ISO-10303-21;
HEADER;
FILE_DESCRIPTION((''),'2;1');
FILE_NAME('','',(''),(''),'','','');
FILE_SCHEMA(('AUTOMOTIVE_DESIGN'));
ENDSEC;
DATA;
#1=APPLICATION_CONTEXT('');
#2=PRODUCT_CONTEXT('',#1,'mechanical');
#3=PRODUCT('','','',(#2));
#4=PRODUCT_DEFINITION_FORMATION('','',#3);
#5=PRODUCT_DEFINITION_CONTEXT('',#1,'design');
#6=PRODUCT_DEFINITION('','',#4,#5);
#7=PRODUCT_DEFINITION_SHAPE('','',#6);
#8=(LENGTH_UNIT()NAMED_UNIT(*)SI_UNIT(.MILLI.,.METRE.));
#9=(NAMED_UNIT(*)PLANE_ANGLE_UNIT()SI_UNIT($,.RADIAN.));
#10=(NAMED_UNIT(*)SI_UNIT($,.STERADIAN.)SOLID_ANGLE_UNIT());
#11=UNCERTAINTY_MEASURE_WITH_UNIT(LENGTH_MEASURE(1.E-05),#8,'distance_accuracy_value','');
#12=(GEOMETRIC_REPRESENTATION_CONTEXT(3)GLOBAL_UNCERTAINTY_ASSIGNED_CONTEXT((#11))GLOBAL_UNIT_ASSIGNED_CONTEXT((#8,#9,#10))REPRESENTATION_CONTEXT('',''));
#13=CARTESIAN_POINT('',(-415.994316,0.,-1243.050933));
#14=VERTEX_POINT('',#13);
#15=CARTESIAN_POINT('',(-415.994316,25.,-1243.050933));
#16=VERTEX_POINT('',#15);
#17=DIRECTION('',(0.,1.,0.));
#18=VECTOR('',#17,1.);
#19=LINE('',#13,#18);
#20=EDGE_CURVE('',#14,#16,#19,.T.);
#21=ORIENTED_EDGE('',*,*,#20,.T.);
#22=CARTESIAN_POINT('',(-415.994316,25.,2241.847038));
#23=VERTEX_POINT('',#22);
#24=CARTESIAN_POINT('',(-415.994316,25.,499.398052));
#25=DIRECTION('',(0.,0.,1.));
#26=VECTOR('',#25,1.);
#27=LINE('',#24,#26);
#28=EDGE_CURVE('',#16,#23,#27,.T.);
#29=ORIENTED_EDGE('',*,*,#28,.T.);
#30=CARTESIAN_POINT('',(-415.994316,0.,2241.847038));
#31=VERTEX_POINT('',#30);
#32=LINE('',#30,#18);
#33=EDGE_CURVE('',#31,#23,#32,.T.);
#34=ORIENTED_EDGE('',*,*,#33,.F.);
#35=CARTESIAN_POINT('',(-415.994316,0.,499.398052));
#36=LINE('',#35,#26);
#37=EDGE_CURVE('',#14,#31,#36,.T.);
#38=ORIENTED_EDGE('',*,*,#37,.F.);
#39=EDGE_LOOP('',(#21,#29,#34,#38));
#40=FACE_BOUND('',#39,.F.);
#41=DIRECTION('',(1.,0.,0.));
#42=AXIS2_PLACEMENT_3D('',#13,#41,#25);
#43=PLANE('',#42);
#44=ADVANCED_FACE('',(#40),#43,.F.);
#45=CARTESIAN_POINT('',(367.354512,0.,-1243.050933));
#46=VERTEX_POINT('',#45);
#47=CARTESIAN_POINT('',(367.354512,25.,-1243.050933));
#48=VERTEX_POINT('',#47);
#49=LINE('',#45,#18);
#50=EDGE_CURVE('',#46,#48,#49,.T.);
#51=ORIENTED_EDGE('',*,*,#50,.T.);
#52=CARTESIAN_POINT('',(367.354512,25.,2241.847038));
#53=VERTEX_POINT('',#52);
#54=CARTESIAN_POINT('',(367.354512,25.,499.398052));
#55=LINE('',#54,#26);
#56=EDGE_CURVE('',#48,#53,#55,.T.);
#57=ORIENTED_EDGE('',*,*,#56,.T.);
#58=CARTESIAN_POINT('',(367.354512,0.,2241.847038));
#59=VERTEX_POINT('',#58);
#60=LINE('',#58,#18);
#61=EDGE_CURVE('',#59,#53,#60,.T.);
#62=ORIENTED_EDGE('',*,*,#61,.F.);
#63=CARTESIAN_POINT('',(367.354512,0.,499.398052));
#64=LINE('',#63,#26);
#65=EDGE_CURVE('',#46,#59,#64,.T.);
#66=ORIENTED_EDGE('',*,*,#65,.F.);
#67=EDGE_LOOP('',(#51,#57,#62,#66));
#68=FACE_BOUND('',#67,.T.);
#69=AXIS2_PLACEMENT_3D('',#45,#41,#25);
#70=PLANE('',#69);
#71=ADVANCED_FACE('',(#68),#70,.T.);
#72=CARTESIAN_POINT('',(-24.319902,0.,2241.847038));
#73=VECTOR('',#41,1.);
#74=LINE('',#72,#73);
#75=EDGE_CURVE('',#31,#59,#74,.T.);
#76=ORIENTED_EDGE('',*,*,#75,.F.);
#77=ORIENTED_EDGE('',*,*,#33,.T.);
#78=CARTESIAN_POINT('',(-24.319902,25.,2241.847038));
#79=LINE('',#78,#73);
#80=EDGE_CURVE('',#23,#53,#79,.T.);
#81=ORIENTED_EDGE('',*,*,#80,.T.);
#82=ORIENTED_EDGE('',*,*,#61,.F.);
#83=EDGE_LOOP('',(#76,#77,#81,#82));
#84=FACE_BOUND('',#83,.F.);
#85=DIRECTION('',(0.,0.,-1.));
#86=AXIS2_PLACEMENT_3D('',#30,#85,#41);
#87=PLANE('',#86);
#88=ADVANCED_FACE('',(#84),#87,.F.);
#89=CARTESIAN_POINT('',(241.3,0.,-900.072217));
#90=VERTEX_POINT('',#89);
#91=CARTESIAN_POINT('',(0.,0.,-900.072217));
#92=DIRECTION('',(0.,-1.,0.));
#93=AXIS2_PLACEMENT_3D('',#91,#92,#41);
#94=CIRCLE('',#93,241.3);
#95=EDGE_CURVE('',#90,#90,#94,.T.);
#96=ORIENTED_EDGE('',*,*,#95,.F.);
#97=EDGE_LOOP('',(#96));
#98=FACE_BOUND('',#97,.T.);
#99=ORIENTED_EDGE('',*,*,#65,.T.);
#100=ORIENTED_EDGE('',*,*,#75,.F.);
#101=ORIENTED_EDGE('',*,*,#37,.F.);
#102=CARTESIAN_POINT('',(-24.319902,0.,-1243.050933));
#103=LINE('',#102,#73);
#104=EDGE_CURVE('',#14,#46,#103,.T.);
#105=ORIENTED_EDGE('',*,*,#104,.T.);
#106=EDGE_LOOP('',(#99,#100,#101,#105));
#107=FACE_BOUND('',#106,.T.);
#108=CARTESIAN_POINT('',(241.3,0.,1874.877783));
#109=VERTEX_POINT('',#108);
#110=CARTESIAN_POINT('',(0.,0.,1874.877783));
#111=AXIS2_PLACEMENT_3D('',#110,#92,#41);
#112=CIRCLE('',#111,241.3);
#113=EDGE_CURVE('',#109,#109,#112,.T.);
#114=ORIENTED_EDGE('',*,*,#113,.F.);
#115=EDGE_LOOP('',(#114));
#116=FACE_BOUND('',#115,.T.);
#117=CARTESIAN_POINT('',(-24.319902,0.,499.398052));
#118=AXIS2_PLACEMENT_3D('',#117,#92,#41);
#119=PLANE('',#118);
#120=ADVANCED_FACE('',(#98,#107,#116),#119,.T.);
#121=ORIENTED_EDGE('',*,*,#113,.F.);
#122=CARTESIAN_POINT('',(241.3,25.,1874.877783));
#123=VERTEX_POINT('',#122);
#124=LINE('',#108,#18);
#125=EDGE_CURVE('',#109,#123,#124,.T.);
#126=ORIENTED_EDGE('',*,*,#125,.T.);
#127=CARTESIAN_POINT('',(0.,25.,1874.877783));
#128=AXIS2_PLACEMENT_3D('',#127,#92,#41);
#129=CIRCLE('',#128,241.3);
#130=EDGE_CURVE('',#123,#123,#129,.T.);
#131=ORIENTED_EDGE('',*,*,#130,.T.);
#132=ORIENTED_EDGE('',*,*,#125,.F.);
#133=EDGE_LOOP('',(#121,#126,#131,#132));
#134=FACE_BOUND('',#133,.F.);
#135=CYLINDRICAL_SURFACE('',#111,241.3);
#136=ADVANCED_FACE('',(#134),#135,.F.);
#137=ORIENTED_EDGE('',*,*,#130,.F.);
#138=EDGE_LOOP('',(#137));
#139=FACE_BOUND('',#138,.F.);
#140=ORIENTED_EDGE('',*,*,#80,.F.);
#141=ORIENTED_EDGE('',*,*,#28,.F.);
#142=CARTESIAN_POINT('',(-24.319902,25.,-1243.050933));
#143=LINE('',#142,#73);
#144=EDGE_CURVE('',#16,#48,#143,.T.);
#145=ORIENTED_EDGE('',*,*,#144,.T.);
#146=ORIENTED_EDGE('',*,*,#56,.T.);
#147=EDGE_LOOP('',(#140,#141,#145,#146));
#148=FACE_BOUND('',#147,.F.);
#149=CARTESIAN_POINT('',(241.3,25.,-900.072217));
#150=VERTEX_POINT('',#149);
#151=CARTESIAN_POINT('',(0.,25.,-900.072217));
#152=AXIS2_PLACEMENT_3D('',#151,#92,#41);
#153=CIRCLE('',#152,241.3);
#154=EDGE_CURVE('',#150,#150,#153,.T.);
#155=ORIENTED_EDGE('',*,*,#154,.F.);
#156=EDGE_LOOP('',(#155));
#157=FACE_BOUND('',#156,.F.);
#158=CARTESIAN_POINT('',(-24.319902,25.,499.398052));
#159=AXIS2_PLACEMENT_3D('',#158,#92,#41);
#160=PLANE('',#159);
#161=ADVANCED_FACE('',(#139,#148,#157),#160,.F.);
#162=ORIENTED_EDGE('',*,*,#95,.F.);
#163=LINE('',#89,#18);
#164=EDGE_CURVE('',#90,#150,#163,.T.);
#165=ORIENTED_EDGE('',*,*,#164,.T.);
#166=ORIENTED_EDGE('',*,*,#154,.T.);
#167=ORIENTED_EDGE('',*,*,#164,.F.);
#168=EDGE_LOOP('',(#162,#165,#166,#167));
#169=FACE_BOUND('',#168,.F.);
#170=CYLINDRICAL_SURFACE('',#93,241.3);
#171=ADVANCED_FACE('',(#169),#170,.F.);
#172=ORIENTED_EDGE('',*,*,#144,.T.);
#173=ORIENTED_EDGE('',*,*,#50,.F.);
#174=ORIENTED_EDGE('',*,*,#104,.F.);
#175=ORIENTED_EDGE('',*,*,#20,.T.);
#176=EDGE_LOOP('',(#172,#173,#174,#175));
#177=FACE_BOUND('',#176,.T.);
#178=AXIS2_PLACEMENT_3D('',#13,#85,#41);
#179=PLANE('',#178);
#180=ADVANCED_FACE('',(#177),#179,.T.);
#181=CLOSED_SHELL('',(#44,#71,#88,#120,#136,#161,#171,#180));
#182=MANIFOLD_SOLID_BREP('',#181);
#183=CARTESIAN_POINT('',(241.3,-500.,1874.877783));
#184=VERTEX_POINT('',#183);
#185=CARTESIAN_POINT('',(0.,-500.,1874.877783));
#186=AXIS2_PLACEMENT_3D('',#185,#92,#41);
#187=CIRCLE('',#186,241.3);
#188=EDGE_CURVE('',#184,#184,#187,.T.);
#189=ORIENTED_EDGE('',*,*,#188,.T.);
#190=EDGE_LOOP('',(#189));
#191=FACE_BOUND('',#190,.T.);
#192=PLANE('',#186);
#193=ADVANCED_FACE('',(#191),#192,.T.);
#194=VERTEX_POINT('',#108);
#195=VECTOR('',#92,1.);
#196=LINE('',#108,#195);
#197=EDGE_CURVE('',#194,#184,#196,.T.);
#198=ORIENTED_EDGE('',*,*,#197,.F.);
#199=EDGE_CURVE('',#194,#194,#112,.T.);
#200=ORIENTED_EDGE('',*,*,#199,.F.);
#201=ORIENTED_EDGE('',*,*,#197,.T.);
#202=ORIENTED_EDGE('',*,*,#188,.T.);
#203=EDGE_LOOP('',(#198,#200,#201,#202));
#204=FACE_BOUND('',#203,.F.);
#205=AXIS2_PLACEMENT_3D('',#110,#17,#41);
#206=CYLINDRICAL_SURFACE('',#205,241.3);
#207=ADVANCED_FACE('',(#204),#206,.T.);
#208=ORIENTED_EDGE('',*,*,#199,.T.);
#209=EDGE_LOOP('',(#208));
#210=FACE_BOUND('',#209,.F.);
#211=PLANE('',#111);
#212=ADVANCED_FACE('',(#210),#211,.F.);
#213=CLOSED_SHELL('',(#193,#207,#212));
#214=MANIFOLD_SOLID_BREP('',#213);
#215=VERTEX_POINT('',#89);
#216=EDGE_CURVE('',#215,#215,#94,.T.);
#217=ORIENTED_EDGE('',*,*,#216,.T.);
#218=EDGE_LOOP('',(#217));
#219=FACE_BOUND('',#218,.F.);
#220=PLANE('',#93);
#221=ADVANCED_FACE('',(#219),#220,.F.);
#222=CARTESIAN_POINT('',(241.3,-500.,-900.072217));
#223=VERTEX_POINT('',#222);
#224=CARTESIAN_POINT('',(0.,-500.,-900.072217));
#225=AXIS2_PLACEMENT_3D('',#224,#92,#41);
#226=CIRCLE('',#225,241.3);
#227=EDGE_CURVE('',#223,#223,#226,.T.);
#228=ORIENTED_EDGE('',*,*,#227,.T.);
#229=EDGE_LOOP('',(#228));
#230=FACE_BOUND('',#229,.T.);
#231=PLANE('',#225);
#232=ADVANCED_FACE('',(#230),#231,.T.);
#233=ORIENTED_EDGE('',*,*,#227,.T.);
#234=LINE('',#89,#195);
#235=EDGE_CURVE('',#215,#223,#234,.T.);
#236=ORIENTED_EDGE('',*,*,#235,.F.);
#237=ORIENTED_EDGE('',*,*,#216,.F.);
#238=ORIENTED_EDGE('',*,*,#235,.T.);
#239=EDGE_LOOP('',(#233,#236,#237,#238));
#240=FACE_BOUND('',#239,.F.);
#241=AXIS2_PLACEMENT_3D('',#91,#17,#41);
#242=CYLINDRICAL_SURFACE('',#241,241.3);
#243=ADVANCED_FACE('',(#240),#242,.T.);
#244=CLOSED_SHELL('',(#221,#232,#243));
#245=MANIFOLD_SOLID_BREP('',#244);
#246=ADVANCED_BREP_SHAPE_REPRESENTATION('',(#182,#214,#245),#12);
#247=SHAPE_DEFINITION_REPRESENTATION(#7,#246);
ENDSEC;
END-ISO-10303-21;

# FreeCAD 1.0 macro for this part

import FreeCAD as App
import Part
import Sketcher

V = App.Vector
Q = App.Units.Quantity

doc = App.newDocument("Part")
params = doc.addObject("Spreadsheet::Sheet", "Params")
for row, (alias, value) in enumerate([
    ("sketch1_diameter", "482.6 mm"),
    ("pad1_length", "25 mm"),
    ("sketch2_diameter", "482.6 mm"),
    ("pad2_length", "500 mm"),
], start=1):
    params.set(f"A{row}", alias)
    params.set(f"B{row}", "=" + value)
    params.setAlias(f"B{row}", alias)

body = doc.addObject("PartDesign::Body", "Body")

sketch1 = body.newObject("Sketcher::SketchObject", "Sketch")
sketch1.AttachmentSupport = (doc.getObject("XZ_Plane"), [""])
sketch1.MapMode = "FlatFace"
sketch1.addGeometry(Part.LineSegment(V(-416, 2242, 0), V(-416, -1243, 0)), False)
sketch1.addGeometry(Part.LineSegment(V(-416, -1243, 0), V(367, -1243, 0)), False)
sketch1.addGeometry(Part.LineSegment(V(367, -1243, 0), V(367, 2242, 0)), False)
sketch1.addGeometry(Part.LineSegment(V(367, 2242, 0), V(-416, 2242, 0)), False)
sketch1.addGeometry(Part.Circle(V(0, -900, 0), V(0, 0, 1), 241), False)
sketch1.addGeometry(Part.Circle(V(0, 1875, 0), V(0, 0, 1), 241), False)
sketch1.addConstraint(Sketcher.Constraint("Coincident", 0, 2, 1, 1))
sketch1.addConstraint(Sketcher.Constraint("Coincident", 1, 2, 2, 1))
sketch1.addConstraint(Sketcher.Constraint("Coincident", 2, 2, 3, 1))
sketch1.addConstraint(Sketcher.Constraint("Coincident", 3, 2, 0, 1))
sketch1.addConstraint(Sketcher.Constraint("Vertical", 0))
sketch1.addConstraint(Sketcher.Constraint("Horizontal", 1))
sketch1.addConstraint(Sketcher.Constraint("Vertical", 2))
sketch1.addConstraint(Sketcher.Constraint("Horizontal", 3))
sketch1.addConstraint(Sketcher.Constraint("Equal", 4, 5))
sketch1.addConstraint(Sketcher.Constraint("PointOnObject", 4, 3, -2))
sketch1.addConstraint(Sketcher.Constraint("PointOnObject", 5, 3, -2))
sketch1.addConstraint(Sketcher.Constraint("Diameter", 4, Q("482.6 mm")))
sketch1.addConstraint(Sketcher.Constraint("DistanceY", 4, 3, 5, 3, Q("2774.95 mm")))
sketch1.addConstraint(Sketcher.Constraint("DistanceX", 1, 1, 1, 2, Q("783.348828 mm")))
sketch1.addConstraint(Sketcher.Constraint("DistanceY", 0, 2, 0, 1, Q("3484.897971 mm")))
sketch1.addConstraint(Sketcher.Constraint("DistanceX", -1, 1, 1, 2, Q("367.354512 mm")))
sketch1.addConstraint(Sketcher.Constraint("DistanceY", 4, 3, -1, 1, Q("900.072217 mm")))
sketch1.addConstraint(Sketcher.Constraint("DistanceY", 0, 2, -1, 1, Q("1243.050933 mm")))
sketch1.setExpression("Constraints[11]", "Params.sketch1_diameter")
pad1 = body.newObject("PartDesign::Pad", "Pad")
pad1.Profile = sketch1
pad1.setExpression("Length", "Params.pad1_length")
pad1.Reversed = True
body2 = doc.addObject("PartDesign::Body", "Body001")
body2.AllowCompound = True

sketch2 = body2.newObject("Sketcher::SketchObject", "Sketch001")
sketch2.AttachmentSupport = (doc.getObject("XZ_Plane001"), [""])
sketch2.MapMode = "FlatFace"
sketch2.addGeometry(Part.Circle(V(0, 1875, 0), V(0, 0, 1), 241), False)
sketch2.addGeometry(Part.Circle(V(0, -900, 0), V(0, 0, 1), 241), False)
sketch2.addConstraint(Sketcher.Constraint("Equal", 0, 1))
sketch2.addConstraint(Sketcher.Constraint("PointOnObject", 0, 3, -2))
sketch2.addConstraint(Sketcher.Constraint("PointOnObject", 1, 3, -2))
sketch2.addConstraint(Sketcher.Constraint("Diameter", 0, Q("482.6 mm")))
sketch2.addConstraint(Sketcher.Constraint("DistanceY", 1, 3, 0, 3, Q("2774.95 mm")))
sketch2.addConstraint(Sketcher.Constraint("DistanceY", -1, 1, 0, 3, Q("1874.877783 mm")))
sketch2.setExpression("Constraints[3]", "Params.sketch2_diameter")
pad2 = body2.newObject("PartDesign::Pad", "Pad001")
pad2.Profile = sketch2
pad2.setExpression("Length", "Params.pad2_length")

doc.recompute()
